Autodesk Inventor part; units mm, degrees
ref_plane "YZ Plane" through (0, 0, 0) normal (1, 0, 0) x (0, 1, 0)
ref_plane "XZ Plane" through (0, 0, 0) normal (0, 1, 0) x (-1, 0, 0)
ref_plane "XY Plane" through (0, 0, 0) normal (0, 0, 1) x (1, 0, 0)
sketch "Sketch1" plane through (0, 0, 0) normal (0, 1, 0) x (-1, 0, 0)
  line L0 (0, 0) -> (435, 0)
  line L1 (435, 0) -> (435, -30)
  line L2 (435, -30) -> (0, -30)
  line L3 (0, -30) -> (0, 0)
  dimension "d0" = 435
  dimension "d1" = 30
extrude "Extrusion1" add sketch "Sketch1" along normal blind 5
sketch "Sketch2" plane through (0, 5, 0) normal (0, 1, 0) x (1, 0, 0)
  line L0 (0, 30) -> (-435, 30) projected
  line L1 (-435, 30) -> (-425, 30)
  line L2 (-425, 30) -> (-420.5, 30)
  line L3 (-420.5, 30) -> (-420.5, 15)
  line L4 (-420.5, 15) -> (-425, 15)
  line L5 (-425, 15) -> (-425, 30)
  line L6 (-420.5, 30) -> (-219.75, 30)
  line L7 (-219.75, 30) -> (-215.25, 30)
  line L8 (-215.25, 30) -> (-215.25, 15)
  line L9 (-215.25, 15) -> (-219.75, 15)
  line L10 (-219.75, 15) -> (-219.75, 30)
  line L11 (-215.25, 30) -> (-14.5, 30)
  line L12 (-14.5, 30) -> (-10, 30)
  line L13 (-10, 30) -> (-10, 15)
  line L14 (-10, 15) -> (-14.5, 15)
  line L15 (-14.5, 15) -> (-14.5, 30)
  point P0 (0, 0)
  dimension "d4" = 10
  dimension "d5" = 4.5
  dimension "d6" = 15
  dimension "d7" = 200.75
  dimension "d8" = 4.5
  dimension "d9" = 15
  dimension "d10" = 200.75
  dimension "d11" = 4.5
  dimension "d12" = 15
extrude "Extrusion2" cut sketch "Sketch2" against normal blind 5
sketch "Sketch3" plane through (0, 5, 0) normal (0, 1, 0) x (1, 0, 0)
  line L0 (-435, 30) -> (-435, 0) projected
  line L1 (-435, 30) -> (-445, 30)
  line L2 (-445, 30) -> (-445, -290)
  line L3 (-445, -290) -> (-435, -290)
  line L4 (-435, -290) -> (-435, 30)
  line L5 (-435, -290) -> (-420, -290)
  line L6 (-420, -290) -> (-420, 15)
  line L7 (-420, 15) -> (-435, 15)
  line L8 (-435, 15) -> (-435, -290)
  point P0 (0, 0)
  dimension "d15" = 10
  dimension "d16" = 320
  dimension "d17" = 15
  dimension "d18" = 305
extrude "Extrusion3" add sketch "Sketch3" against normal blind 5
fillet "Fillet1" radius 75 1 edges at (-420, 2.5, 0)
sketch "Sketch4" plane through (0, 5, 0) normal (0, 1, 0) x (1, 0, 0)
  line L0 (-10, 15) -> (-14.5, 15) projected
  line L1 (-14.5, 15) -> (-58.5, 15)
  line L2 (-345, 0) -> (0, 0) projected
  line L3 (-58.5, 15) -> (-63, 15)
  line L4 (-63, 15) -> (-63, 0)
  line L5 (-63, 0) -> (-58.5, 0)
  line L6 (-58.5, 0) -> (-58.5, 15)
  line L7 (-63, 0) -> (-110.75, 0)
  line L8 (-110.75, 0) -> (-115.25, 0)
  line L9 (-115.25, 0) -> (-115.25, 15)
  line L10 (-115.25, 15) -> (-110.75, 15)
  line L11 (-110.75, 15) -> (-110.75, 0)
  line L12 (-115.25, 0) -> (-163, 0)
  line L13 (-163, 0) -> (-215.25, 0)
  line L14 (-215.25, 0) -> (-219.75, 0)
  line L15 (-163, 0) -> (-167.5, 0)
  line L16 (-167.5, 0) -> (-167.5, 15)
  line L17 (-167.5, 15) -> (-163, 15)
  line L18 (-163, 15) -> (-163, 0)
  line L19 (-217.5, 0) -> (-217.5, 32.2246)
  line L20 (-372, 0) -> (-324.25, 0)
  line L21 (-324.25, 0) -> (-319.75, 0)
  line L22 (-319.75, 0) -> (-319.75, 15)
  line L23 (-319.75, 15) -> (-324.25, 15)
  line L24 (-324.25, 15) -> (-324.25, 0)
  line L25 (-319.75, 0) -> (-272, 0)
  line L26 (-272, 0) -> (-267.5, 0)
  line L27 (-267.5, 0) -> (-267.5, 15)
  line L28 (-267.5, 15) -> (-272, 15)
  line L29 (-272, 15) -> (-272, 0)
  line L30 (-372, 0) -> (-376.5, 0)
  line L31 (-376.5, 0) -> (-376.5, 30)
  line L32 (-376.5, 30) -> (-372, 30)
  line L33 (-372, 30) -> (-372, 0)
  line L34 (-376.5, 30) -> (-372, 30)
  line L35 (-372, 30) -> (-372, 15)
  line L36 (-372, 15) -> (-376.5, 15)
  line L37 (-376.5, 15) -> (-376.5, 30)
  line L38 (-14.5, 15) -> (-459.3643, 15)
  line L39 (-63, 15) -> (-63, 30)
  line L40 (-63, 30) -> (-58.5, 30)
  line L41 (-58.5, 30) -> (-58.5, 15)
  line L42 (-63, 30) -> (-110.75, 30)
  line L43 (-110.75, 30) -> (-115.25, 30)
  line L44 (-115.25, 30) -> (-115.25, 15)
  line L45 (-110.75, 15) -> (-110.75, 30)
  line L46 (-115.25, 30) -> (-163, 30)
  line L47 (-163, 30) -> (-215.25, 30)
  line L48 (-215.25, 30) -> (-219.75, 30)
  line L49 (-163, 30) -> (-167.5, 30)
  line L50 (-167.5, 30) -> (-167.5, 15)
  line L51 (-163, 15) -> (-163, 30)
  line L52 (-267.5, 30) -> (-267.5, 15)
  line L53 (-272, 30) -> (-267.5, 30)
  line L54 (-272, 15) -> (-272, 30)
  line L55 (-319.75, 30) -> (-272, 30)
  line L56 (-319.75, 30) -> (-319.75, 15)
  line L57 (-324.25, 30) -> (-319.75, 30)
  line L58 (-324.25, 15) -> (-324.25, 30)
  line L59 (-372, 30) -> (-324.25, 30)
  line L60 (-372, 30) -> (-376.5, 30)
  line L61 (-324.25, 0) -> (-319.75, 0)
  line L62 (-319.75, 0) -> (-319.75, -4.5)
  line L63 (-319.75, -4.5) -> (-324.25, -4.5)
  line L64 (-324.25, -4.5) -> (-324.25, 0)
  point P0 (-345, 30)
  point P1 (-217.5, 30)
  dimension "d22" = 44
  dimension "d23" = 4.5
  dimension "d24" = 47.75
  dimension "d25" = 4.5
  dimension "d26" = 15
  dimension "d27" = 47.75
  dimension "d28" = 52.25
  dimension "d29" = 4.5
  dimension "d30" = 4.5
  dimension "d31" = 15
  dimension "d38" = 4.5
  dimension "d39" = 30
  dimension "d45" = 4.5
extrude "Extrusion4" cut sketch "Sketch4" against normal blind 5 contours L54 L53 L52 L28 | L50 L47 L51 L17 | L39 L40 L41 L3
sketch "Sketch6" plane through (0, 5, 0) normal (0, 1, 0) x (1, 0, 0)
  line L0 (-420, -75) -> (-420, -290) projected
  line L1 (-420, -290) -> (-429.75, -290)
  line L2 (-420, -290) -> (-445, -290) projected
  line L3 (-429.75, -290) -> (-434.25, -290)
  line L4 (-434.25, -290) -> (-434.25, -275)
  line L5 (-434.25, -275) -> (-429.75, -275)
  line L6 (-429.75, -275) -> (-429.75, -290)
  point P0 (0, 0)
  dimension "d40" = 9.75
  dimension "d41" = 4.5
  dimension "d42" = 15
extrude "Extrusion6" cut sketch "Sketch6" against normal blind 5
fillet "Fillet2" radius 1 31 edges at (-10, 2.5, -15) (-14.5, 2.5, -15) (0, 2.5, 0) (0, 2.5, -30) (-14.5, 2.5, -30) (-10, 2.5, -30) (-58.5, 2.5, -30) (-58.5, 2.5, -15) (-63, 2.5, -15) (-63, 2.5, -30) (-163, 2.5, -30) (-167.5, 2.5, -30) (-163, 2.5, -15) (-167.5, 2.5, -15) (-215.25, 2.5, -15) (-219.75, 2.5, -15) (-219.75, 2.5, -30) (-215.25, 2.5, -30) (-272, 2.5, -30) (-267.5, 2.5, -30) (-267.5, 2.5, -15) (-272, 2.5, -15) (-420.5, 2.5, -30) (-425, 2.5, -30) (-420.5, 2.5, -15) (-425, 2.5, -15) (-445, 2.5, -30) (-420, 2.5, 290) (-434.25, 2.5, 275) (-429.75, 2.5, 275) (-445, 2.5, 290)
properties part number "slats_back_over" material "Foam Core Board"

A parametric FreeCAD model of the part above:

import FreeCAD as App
import Part
import Sketcher

V = App.Vector


def edges_at(feature, points):
    """Names of the edges that pass closest to the given points."""
    edges = feature.Shape.Edges
    near = lambda p: min(range(len(edges)), key=lambda i: edges[i].distToShape(Part.Vertex(*p))[0])
    return sorted({f"Edge{near(p) + 1}" for p in points})

doc = App.newDocument("Part")
body = doc.addObject("PartDesign::Body", "Body")

# Sketch on XZ plane
sketch1 = body.newObject("Sketcher::SketchObject", "Sketch")
sketch1.AttachmentSupport = (doc.getObject("XZ_Plane"), [""])
sketch1.MapMode = "FlatFace"
sketch1.addGeometry([
    Part.LineSegment(V(-435, 0, 0), V(0, 0, 0)),
    Part.LineSegment(V(0, 0, 0), V(0, -30, 0)),
    Part.LineSegment(V(0, -30, 0), V(-435, -30, 0)),
    Part.LineSegment(V(-435, -30, 0), V(-435, 0, 0)),
], False)
sketch1.addConstraint([
    Sketcher.Constraint("Coincident", 0, 2, 1, 1),
    Sketcher.Constraint("Coincident", 1, 2, 2, 1),
    Sketcher.Constraint("Coincident", 2, 2, 3, 1),
    Sketcher.Constraint("Coincident", 3, 2, 0, 1),
    Sketcher.Constraint("Horizontal", 0),
    Sketcher.Constraint("Vertical", 1),
    Sketcher.Constraint("Horizontal", 2),
    Sketcher.Constraint("Vertical", 3),
    Sketcher.Constraint("Coincident", 0, 2, -1, 1),
    Sketcher.Constraint("DistanceX", 0, 1, 0, 2, 435.0),
    Sketcher.Constraint("DistanceY", 1, 2, 1, 1, 30.0),
])
pad1 = body.newObject("PartDesign::Pad", "Pad")
pad1.Profile = sketch1
pad1.Length = 5
pad1.Reversed = True

# Sketch on XZ plane
sketch2 = body.newObject("Sketcher::SketchObject", "Sketch001")
sketch2.AttachmentSupport = (doc.getObject("XZ_Plane"), [""])
sketch2.MapMode = "FlatFace"
sketch2.AttachmentOffset = App.Placement(V(0, 0, -5), App.Rotation())
sketch2.addGeometry([
    Part.LineSegment(V(-10, -15, 0), V(-10, -30, 0)),  # 0
    Part.LineSegment(V(-10, -30, 0), V(-14.5, -30, 0)),  # 1
    Part.LineSegment(V(-14.5, -30, 0), V(-14.5, -15, 0)),  # 2
    Part.LineSegment(V(-14.5, -15, 0), V(-10, -15, 0)),  # 3
    Part.LineSegment(V(-420.5, -15, 0), V(-420.5, -30, 0)),  # 4
    Part.LineSegment(V(-420.5, -30, 0), V(-425, -30, 0)),  # 5
    Part.LineSegment(V(-425, -30, 0), V(-425, -15, 0)),  # 6
    Part.LineSegment(V(-425, -15, 0), V(-420.5, -15, 0)),  # 7
    Part.LineSegment(V(-215.25, -15, 0), V(-215.25, -30, 0)),  # 8
    Part.LineSegment(V(-215.25, -30, 0), V(-219.75, -30, 0)),  # 9
    Part.LineSegment(V(-219.75, -30, 0), V(-219.75, -15, 0)),  # 10
    Part.LineSegment(V(-219.75, -15, 0), V(-215.25, -15, 0)),  # 11
], False)
sketch2.addConstraint([
    Sketcher.Constraint("Coincident", 0, 2, 1, 1),
    Sketcher.Constraint("Coincident", 1, 2, 2, 1),
    Sketcher.Constraint("Coincident", 2, 2, 3, 1),
    Sketcher.Constraint("Coincident", 3, 2, 0, 1),
    Sketcher.Constraint("Coincident", 4, 2, 5, 1),
    Sketcher.Constraint("Coincident", 5, 2, 6, 1),
    Sketcher.Constraint("Coincident", 6, 2, 7, 1),
    Sketcher.Constraint("Coincident", 7, 2, 4, 1),
    Sketcher.Constraint("Coincident", 8, 2, 9, 1),
    Sketcher.Constraint("Coincident", 9, 2, 10, 1),
    Sketcher.Constraint("Coincident", 10, 2, 11, 1),
    Sketcher.Constraint("Coincident", 11, 2, 8, 1),
    Sketcher.Constraint("Vertical", 0),
    Sketcher.Constraint("Horizontal", 1),
    Sketcher.Constraint("Vertical", 2),
    Sketcher.Constraint("Horizontal", 3),
    Sketcher.Constraint("Vertical", 4),
    Sketcher.Constraint("Horizontal", 5),
    Sketcher.Constraint("Vertical", 6),
    Sketcher.Constraint("Horizontal", 7),
    Sketcher.Constraint("Vertical", 8),
    Sketcher.Constraint("Horizontal", 9),
    Sketcher.Constraint("Vertical", 10),
    Sketcher.Constraint("Horizontal", 11),
    Sketcher.Constraint("Horizontal", 1, 2, 4, 2),
    Sketcher.Constraint("Horizontal", 3, 2, 6, 2),
    Sketcher.Constraint("Horizontal", 5, 2, 8, 2),
    Sketcher.Constraint("Horizontal", 7, 2, 10, 2),
    Sketcher.Constraint("Equal", 3, 5),
    Sketcher.Constraint("Equal", 7, 9),
    Sketcher.Constraint("DistanceY", 0, 2, 0, 1, 15.0),
    Sketcher.Constraint("DistanceX", 1, 2, 1, 1, 4.5),
    Sketcher.Constraint("DistanceX", 0, 2, -1, 1, 10.0),
    Sketcher.Constraint("DistanceY", 2, 2, -1, 1, 15.0),
    Sketcher.Constraint("DistanceX", 8, 2, 1, 2, 200.75),
    Sketcher.Constraint("DistanceX", 4, 2, 9, 2, 200.75),
])
pocket1 = body.newObject("PartDesign::Pocket", "Pocket")
pocket1.Profile = sketch2
pocket1.Length = 5
pocket1.Reversed = True

# Sketch on XZ plane
sketch3 = body.newObject("Sketcher::SketchObject", "Sketch002")
sketch3.AttachmentSupport = (doc.getObject("XZ_Plane"), [""])
sketch3.MapMode = "FlatFace"
sketch3.AttachmentOffset = App.Placement(V(0, 0, -5), App.Rotation())
sketch3.addGeometry([
    Part.LineSegment(V(-435, -15, 0), V(-435, -30, 0)),  # 0
    Part.LineSegment(V(-435, -30, 0), V(-445, -30, 0)),  # 1
    Part.LineSegment(V(-445, -30, 0), V(-445, 290, 0)),  # 2
    Part.LineSegment(V(-445, 290, 0), V(-420, 290, 0)),  # 3
    Part.LineSegment(V(-420, 290, 0), V(-420, -15, 0)),  # 4
    Part.LineSegment(V(-420, -15, 0), V(-435, -15, 0)),  # 5
], False)
sketch3.addConstraint([
    Sketcher.Constraint("Coincident", 0, 2, 1, 1),
    Sketcher.Constraint("Coincident", 1, 2, 2, 1),
    Sketcher.Constraint("Coincident", 2, 2, 3, 1),
    Sketcher.Constraint("Coincident", 3, 2, 4, 1),
    Sketcher.Constraint("Coincident", 4, 2, 5, 1),
    Sketcher.Constraint("Coincident", 5, 2, 0, 1),
    Sketcher.Constraint("Vertical", 0),
    Sketcher.Constraint("Horizontal", 1),
    Sketcher.Constraint("Vertical", 2),
    Sketcher.Constraint("Horizontal", 3),
    Sketcher.Constraint("Vertical", 4),
    Sketcher.Constraint("Horizontal", 5),
    Sketcher.Constraint("Equal", 5, 0),
    Sketcher.Constraint("DistanceX", 1, 2, 1, 1, 10.0),
    Sketcher.Constraint("DistanceX", 5, 2, 5, 1, 15.0),
    Sketcher.Constraint("DistanceY", 2, 1, 2, 2, 320.0),
    Sketcher.Constraint("DistanceY", 4, 2, -1, 1, 15.0),
    Sketcher.Constraint("DistanceX", 0, 2, -1, 1, 435.0),
])
pad2 = body.newObject("PartDesign::Pad", "Pad001")
pad2.Profile = sketch3
pad2.Length = 5
doc.recompute()

fillet = body.newObject("PartDesign::Fillet", "Fillet")
fillet.Base = (pad2, edges_at(pad2, [(-420, 2.5, 0)]))
fillet.Radius = 75

# Sketch on XZ plane
sketch4 = body.newObject("Sketcher::SketchObject", "Sketch003")
sketch4.AttachmentSupport = (doc.getObject("XZ_Plane"), [""])
sketch4.MapMode = "FlatFace"
sketch4.AttachmentOffset = App.Placement(V(0, 0, -5), App.Rotation())
sketch4.addGeometry([
    Part.LineSegment(V(-272, -30, 0), V(-272, -15, 0)),  # 0
    Part.LineSegment(V(-272, -15, 0), V(-267.5, -15, 0)),  # 1
    Part.LineSegment(V(-267.5, -15, 0), V(-267.5, -30, 0)),  # 2
    Part.LineSegment(V(-267.5, -30, 0), V(-272, -30, 0)),  # 3
    Part.LineSegment(V(-167.5, -30, 0), V(-167.5, -15, 0)),  # 4
    Part.LineSegment(V(-167.5, -15, 0), V(-163, -15, 0)),  # 5
    Part.LineSegment(V(-163, -15, 0), V(-163, -30, 0)),  # 6
    Part.LineSegment(V(-163, -30, 0), V(-167.5, -30, 0)),  # 7
    Part.LineSegment(V(-63, -30, 0), V(-63, -15, 0)),  # 8
    Part.LineSegment(V(-63, -15, 0), V(-58.5, -15, 0)),  # 9
    Part.LineSegment(V(-58.5, -15, 0), V(-58.5, -30, 0)),  # 10
    Part.LineSegment(V(-58.5, -30, 0), V(-63, -30, 0)),  # 11
], False)
sketch4.addConstraint([
    Sketcher.Constraint("Coincident", 0, 2, 1, 1),
    Sketcher.Constraint("Coincident", 1, 2, 2, 1),
    Sketcher.Constraint("Coincident", 2, 2, 3, 1),
    Sketcher.Constraint("Coincident", 3, 2, 0, 1),
    Sketcher.Constraint("Coincident", 4, 2, 5, 1),
    Sketcher.Constraint("Coincident", 5, 2, 6, 1),
    Sketcher.Constraint("Coincident", 6, 2, 7, 1),
    Sketcher.Constraint("Coincident", 7, 2, 4, 1),
    Sketcher.Constraint("Coincident", 8, 2, 9, 1),
    Sketcher.Constraint("Coincident", 9, 2, 10, 1),
    Sketcher.Constraint("Coincident", 10, 2, 11, 1),
    Sketcher.Constraint("Coincident", 11, 2, 8, 1),
    Sketcher.Constraint("Vertical", 0),
    Sketcher.Constraint("Horizontal", 1),
    Sketcher.Constraint("Vertical", 2),
    Sketcher.Constraint("Horizontal", 3),
    Sketcher.Constraint("Vertical", 4),
    Sketcher.Constraint("Horizontal", 5),
    Sketcher.Constraint("Vertical", 6),
    Sketcher.Constraint("Horizontal", 7),
    Sketcher.Constraint("Vertical", 8),
    Sketcher.Constraint("Horizontal", 9),
    Sketcher.Constraint("Vertical", 10),
    Sketcher.Constraint("Horizontal", 11),
    Sketcher.Constraint("Horizontal", 1, 2, 4, 2),
    Sketcher.Constraint("Horizontal", 3, 2, 6, 2),
    Sketcher.Constraint("Horizontal", 5, 2, 8, 2),
    Sketcher.Constraint("Horizontal", 7, 2, 10, 2),
    Sketcher.Constraint("Equal", 3, 5),
    Sketcher.Constraint("Equal", 7, 9),
    Sketcher.Constraint("DistanceY", 0, 1, 0, 2, 15.0),
    Sketcher.Constraint("DistanceX", 1, 1, 1, 2, 4.5),
    Sketcher.Constraint("DistanceY", 0, 2, -1, 1, 15.0),
    Sketcher.Constraint("DistanceX", 0, 2, -1, 1, 272.0),
    Sketcher.Constraint("DistanceX", 5, 2, -1, 1, 163.0),
    Sketcher.Constraint("DistanceX", 8, 2, -1, 1, 63.0),
])
pocket2 = body.newObject("PartDesign::Pocket", "Pocket001")
pocket2.Profile = sketch4
pocket2.Length = 5
pocket2.Reversed = True

# Sketch on XZ plane
sketch5 = body.newObject("Sketcher::SketchObject", "Sketch004")
sketch5.AttachmentSupport = (doc.getObject("XZ_Plane"), [""])
sketch5.MapMode = "FlatFace"
sketch5.AttachmentOffset = App.Placement(V(0, 0, -5), App.Rotation())
sketch5.addGeometry([
    Part.LineSegment(V(-434.25, 290, 0), V(-429.75, 290, 0)),
    Part.LineSegment(V(-429.75, 290, 0), V(-429.75, 275, 0)),
    Part.LineSegment(V(-429.75, 275, 0), V(-434.25, 275, 0)),
    Part.LineSegment(V(-434.25, 275, 0), V(-434.25, 290, 0)),
], False)
sketch5.addConstraint([
    Sketcher.Constraint("Coincident", 0, 2, 1, 1),
    Sketcher.Constraint("Coincident", 1, 2, 2, 1),
    Sketcher.Constraint("Coincident", 2, 2, 3, 1),
    Sketcher.Constraint("Coincident", 3, 2, 0, 1),
    Sketcher.Constraint("Horizontal", 0),
    Sketcher.Constraint("Vertical", 1),
    Sketcher.Constraint("Horizontal", 2),
    Sketcher.Constraint("Vertical", 3),
    Sketcher.Constraint("DistanceY", 1, 2, 1, 1, 15.0),
    Sketcher.Constraint("DistanceX", 0, 1, 0, 2, 4.5),
    Sketcher.Constraint("DistanceY", -1, 1, 0, 2, 290.0),
    Sketcher.Constraint("DistanceX", 0, 2, -1, 1, 429.75),
])
pocket3 = body.newObject("PartDesign::Pocket", "Pocket002")
pocket3.Profile = sketch5
pocket3.Length = 5
pocket3.Reversed = True
doc.recompute()

fillet2 = body.newObject("PartDesign::Fillet", "Fillet001")
fillet2.Base = (pocket3, edges_at(pocket3, [
    (-10, 2.5, -15),
    (-14.5, 2.5, -15),
    (0, 2.5, 0),
    (0, 2.5, -30),
    (-14.5, 2.5, -30),
    (-10, 2.5, -30),
    (-58.5, 2.5, -30),
    (-58.5, 2.5, -15),
    (-63, 2.5, -15),
    (-63, 2.5, -30),
    (-163, 2.5, -30),
    (-167.5, 2.5, -30),
    (-163, 2.5, -15),
    (-167.5, 2.5, -15),
    (-215.25, 2.5, -15),
    (-219.75, 2.5, -15),
    (-219.75, 2.5, -30),
    (-215.25, 2.5, -30),
    (-272, 2.5, -30),
    (-267.5, 2.5, -30),
    (-267.5, 2.5, -15),
    (-272, 2.5, -15),
    (-420.5, 2.5, -30),
    (-425, 2.5, -30),
    (-420.5, 2.5, -15),
    (-425, 2.5, -15),
    (-445, 2.5, -30),
    (-420, 2.5, 290),
    (-434.25, 2.5, 275),
    (-429.75, 2.5, 275),
    (-445, 2.5, 290),
]))
fillet2.Radius = 1

doc.recompute()
